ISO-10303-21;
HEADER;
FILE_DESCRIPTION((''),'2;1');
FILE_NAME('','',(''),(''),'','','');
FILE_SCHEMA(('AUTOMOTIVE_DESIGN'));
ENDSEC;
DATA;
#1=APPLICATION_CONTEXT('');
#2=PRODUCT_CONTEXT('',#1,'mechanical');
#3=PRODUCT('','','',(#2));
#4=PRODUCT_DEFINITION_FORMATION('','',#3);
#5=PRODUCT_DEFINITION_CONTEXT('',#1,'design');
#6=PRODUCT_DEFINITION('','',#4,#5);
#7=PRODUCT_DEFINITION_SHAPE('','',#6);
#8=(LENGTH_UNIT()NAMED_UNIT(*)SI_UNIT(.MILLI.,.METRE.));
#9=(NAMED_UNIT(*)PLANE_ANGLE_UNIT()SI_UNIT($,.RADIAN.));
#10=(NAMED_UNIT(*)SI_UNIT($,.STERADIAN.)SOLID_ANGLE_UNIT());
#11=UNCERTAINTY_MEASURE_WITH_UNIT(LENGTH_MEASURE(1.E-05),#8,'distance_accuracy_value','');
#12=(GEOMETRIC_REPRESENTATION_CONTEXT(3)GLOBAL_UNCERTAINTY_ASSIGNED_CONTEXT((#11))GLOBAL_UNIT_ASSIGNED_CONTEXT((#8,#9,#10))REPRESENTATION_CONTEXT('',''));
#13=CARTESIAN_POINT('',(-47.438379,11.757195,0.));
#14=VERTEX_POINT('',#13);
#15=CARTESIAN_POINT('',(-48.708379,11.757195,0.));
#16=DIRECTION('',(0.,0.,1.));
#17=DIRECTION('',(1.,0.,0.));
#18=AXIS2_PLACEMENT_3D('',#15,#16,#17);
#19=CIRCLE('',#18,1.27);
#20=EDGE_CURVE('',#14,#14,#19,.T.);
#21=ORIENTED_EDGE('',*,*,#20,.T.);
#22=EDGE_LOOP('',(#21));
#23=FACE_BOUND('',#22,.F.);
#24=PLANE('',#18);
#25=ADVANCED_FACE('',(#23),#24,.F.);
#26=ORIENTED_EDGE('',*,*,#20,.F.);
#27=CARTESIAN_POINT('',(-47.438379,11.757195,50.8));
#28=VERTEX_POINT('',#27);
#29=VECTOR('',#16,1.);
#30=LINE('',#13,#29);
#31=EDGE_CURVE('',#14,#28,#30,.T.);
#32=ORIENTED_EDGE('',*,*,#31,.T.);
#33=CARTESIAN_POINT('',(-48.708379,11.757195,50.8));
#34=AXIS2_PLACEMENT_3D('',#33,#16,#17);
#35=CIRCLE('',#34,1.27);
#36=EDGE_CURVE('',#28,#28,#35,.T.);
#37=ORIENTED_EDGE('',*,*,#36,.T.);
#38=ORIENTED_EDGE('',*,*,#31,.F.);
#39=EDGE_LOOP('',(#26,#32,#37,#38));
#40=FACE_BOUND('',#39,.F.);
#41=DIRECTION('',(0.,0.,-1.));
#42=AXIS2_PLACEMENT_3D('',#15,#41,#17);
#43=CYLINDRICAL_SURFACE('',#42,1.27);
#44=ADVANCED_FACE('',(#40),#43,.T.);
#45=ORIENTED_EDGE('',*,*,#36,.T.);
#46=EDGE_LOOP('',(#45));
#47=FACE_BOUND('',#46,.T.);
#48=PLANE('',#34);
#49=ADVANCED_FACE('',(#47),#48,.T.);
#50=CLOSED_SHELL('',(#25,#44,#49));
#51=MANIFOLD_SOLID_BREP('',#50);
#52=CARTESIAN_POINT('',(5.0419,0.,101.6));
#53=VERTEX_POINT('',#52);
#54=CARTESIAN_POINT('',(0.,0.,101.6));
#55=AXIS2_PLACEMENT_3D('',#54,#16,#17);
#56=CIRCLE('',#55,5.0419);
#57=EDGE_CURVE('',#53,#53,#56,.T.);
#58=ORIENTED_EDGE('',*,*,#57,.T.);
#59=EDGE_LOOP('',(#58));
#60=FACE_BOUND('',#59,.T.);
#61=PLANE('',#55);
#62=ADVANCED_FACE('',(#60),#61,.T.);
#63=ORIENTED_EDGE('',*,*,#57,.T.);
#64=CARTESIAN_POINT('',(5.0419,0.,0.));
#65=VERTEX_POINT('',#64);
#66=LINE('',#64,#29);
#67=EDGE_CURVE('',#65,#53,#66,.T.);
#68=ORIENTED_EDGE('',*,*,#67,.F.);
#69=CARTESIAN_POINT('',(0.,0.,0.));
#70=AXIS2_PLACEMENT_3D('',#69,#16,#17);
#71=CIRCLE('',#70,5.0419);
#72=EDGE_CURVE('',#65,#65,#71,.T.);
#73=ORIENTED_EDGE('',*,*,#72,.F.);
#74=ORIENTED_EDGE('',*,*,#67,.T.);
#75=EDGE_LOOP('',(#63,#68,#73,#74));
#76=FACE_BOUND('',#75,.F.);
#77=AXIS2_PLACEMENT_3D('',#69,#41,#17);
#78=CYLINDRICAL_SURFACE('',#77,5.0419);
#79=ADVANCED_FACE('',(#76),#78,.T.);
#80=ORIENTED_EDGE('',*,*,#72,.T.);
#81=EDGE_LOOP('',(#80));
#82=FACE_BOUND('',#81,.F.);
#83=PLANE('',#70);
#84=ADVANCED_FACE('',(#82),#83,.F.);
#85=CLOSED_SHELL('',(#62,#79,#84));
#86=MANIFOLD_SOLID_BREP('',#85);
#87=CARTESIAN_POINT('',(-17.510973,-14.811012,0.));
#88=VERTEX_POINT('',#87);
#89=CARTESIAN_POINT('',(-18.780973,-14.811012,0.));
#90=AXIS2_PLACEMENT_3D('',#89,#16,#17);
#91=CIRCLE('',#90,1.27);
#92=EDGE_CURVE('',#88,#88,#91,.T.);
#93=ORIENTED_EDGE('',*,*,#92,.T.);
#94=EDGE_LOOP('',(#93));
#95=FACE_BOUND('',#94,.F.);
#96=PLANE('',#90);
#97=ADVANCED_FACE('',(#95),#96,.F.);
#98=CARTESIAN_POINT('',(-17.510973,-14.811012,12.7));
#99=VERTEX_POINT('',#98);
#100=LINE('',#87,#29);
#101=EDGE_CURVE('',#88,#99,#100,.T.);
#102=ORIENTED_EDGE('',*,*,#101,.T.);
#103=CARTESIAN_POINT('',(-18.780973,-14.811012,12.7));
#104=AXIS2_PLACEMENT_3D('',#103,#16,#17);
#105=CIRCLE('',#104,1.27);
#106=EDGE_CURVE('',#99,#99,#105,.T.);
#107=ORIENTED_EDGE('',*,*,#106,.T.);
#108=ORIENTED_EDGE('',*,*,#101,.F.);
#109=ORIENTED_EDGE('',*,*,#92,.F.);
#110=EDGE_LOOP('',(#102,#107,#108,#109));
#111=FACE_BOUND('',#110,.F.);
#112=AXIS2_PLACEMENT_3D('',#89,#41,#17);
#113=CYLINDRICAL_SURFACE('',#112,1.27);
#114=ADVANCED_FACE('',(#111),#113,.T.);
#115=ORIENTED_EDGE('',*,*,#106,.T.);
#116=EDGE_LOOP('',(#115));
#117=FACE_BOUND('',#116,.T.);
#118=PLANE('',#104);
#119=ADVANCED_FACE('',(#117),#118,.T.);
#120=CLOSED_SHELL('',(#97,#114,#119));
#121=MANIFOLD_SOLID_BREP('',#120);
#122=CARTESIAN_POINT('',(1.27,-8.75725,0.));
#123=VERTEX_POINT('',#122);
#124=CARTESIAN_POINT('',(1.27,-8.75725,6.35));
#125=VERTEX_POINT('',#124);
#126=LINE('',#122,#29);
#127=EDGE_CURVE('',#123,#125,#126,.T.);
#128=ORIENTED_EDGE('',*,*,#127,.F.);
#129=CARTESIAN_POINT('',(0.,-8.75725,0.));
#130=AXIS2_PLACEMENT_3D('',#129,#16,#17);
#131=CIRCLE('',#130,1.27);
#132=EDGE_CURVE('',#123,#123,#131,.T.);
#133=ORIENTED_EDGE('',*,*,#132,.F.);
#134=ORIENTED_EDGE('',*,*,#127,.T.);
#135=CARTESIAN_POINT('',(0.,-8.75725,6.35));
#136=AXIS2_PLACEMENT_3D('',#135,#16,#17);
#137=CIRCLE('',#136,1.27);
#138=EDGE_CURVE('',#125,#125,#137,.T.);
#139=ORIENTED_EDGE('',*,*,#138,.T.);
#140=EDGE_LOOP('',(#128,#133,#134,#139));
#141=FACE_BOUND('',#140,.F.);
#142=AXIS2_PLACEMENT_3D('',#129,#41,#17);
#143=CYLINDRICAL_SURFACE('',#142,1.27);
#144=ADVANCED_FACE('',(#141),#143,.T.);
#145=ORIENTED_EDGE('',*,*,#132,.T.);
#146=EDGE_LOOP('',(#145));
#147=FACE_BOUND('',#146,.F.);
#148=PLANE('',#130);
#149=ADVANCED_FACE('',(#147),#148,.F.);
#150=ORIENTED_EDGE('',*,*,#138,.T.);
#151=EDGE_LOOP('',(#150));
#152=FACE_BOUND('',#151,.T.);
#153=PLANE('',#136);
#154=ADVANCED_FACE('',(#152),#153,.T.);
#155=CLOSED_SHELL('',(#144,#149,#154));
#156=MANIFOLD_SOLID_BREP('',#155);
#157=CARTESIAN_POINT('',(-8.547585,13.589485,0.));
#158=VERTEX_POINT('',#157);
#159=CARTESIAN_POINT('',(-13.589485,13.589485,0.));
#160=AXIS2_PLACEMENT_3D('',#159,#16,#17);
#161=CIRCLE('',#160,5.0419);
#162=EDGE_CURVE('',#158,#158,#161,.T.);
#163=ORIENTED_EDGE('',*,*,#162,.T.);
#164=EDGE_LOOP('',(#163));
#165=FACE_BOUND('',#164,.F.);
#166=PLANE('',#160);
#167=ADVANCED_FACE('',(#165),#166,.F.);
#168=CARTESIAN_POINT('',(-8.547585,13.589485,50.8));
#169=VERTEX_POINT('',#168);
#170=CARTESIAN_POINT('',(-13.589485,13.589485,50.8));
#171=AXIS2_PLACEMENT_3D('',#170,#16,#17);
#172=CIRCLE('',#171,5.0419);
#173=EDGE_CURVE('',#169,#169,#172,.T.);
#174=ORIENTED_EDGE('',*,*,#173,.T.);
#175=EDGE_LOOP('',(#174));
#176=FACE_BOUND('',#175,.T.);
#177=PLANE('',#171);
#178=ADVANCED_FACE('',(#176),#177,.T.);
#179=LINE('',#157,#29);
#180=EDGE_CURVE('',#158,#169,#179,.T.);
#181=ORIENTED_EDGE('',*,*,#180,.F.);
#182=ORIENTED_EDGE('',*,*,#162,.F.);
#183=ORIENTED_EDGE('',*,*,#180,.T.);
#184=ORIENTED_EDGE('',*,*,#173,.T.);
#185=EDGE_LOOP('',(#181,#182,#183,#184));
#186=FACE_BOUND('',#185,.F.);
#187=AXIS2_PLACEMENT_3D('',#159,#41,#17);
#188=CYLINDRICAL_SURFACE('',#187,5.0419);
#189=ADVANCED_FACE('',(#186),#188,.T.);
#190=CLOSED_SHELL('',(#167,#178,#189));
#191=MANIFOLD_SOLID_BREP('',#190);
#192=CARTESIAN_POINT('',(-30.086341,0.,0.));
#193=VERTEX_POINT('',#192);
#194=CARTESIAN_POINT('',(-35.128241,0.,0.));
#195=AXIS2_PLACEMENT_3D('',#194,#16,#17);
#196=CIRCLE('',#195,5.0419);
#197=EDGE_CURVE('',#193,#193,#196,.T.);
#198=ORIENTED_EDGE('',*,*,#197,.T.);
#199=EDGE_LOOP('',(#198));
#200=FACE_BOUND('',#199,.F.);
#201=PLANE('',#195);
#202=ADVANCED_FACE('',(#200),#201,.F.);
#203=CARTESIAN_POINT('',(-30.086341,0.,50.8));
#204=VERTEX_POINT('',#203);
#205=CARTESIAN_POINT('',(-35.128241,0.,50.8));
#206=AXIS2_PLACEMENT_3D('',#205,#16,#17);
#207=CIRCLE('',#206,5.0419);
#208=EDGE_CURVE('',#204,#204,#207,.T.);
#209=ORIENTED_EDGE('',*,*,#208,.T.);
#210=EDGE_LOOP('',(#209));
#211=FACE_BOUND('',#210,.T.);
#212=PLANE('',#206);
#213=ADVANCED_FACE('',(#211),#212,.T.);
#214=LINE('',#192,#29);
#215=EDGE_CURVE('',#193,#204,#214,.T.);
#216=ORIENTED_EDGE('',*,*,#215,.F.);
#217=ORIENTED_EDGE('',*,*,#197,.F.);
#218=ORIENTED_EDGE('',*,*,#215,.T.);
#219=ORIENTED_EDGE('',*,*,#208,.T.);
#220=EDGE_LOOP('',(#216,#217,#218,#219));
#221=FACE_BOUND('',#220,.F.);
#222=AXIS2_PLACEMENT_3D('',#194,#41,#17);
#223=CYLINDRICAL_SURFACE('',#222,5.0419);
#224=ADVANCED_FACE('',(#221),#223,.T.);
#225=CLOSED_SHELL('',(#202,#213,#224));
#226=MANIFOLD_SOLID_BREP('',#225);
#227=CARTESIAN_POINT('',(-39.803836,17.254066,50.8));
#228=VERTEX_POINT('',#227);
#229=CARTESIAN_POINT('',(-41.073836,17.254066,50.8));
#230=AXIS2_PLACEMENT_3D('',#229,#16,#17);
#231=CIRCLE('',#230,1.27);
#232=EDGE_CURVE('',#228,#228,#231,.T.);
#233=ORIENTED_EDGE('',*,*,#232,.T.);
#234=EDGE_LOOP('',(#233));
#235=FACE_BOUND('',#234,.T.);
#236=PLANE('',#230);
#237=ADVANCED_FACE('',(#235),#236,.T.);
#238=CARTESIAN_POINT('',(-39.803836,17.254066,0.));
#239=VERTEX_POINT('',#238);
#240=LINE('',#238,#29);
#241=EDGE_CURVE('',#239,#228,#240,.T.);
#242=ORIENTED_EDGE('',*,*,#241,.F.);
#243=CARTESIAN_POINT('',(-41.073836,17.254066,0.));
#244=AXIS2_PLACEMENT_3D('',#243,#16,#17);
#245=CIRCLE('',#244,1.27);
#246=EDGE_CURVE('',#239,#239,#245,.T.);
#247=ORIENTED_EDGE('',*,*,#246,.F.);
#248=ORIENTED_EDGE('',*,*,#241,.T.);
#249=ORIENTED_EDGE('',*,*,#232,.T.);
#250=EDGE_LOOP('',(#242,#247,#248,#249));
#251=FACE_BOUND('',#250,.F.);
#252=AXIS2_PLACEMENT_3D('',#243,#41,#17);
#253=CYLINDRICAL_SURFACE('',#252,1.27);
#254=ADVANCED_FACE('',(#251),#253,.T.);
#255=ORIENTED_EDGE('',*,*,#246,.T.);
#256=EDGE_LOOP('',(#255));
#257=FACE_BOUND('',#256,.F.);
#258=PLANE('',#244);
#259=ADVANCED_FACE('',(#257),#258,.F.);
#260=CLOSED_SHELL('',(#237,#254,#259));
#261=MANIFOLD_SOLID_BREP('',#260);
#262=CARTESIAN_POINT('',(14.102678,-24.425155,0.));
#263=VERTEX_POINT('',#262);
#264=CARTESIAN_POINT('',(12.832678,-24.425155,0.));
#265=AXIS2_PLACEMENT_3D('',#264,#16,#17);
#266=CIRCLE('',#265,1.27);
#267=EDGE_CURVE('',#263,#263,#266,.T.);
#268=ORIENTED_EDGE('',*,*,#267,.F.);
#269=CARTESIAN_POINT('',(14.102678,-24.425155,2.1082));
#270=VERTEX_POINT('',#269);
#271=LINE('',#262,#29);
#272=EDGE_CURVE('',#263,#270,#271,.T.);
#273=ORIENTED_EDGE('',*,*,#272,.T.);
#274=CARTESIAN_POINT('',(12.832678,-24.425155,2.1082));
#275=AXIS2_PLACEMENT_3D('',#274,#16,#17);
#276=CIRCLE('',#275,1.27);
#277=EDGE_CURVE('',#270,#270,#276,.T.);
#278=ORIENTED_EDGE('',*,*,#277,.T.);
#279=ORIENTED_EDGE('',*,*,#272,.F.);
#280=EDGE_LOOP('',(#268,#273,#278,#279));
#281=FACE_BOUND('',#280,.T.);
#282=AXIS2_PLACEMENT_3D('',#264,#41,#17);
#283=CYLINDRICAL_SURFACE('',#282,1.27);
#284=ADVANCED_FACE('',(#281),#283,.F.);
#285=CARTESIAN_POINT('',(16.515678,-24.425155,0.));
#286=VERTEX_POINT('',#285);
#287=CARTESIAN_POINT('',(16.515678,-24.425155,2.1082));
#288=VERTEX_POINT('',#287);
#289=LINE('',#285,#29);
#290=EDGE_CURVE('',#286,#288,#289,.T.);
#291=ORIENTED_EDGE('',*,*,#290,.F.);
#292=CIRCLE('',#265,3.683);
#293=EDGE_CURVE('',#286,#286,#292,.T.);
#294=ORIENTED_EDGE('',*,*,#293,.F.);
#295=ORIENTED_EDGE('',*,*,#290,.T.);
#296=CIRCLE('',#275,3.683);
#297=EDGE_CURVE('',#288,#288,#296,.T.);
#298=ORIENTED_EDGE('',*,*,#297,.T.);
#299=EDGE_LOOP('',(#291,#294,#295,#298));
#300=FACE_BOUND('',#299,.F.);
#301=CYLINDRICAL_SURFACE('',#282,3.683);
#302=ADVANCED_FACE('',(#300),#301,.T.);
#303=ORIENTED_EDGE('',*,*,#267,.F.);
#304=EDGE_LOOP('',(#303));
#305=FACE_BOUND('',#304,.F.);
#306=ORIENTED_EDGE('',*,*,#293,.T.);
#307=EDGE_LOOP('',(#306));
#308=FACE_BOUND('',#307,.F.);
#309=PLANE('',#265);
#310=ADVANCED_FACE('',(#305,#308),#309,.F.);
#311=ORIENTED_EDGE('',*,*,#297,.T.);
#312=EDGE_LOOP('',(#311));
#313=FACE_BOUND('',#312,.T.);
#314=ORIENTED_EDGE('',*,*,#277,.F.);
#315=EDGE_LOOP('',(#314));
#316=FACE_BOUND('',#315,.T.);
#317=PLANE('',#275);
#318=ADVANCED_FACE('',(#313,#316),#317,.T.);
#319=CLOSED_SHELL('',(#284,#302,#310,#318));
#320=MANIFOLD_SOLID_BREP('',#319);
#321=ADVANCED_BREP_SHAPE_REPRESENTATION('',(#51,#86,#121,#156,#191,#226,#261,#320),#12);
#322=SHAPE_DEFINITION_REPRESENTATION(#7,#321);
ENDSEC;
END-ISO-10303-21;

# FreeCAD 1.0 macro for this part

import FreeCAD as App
import Part
import Sketcher
from FreeCAD import Vector
Q = App.Units.Quantity

doc = App.newDocument("Part")
body = doc.addObject("PartDesign::Body", "Body")

sketch1 = doc.addObject("Sketcher::SketchObject", "Sketch")
body.addObject(sketch1)
sketch1.AttachmentSupport = (doc.XY_Plane, [""])
sketch1.MapMode = "FlatFace"
sketch1.addGeometry(Part.Circle(Vector(0, 0, 0), Vector(0, 0, 1), 5), False)
sketch1.addConstraint(Sketcher.Constraint("Coincident", 0, 3, -1, 1))
sketch1.addConstraint(Sketcher.Constraint("Diameter", 0, Q("0.397 in")))
pad1 = doc.addObject("PartDesign::Pad", "Pad")
body.addObject(pad1)
pad1.Profile = sketch1
pad1.Length = Q("4 in")
body2 = doc.addObject("PartDesign::Body", "Body001")
body2.AllowCompound = True

sketch2 = doc.addObject("Sketcher::SketchObject", "Sketch001")
body2.addObject(sketch2)
sketch2.AttachmentSupport = (doc.getObject("XY_Plane001"), [""])
sketch2.MapMode = "FlatFace"
sketch2.addGeometry(Part.Circle(Vector(-35.1, 0, 0), Vector(0, 0, 1), 5), False)
sketch2.addGeometry(Part.Circle(Vector(-13.6, 13.6, 0), Vector(0, 0, 1), 5), False)
sketch2.addGeometry(Part.Circle(Vector(-41.1, 17.3, 0), Vector(0, 0, 1), 1.3), False)
sketch2.addGeometry(Part.Circle(Vector(-48.7, 11.8, 0), Vector(0, 0, 1), 1.3), False)
sketch2.addConstraint(Sketcher.Constraint("Equal", 0, 1))
sketch2.addConstraint(Sketcher.Constraint("Equal", 2, 3))
sketch2.addConstraint(Sketcher.Constraint("PointOnObject", 0, 3, -1))
sketch2.addConstraint(Sketcher.Constraint("Diameter", 2, Q("0.1 in")))
sketch2.addConstraint(Sketcher.Constraint("Diameter", 0, Q("0.397 in")))
sketch2.addConstraint(Sketcher.Constraint("DistanceX", 0, 3, -1, 1, 35.128241))
sketch2.addConstraint(Sketcher.Constraint("DistanceX", 3, 3, -1, 1, 48.708379))
sketch2.addConstraint(Sketcher.Constraint("DistanceX", 2, 3, 1, 3, 27.484351))
sketch2.addConstraint(Sketcher.Constraint("DistanceY", 1, 3, 2, 3, 3.664581))
sketch2.addConstraint(Sketcher.Constraint("DistanceY", 3, 3, 2, 3, 5.496871))
sketch2.addConstraint(Sketcher.Constraint("DistanceX", 1, 3, -1, 1, 13.589485))
sketch2.addConstraint(Sketcher.Constraint("DistanceY", -1, 1, 1, 3, 13.589485))
pad2 = doc.addObject("PartDesign::Pad", "Pad001")
body2.addObject(pad2)
pad2.Profile = sketch2
pad2.Length = Q("2 in")
body3 = doc.addObject("PartDesign::Body", "Body002")

sketch3 = doc.addObject("Sketcher::SketchObject", "Sketch002")
body3.addObject(sketch3)
sketch3.AttachmentSupport = (doc.getObject("XY_Plane002"), [""])
sketch3.MapMode = "FlatFace"
sketch3.addGeometry(Part.Circle(Vector(0, -8.8, 0), Vector(0, 0, 1), 1.3), False)
sketch3.addConstraint(Sketcher.Constraint("PointOnObject", 0, 3, -2))
sketch3.addConstraint(Sketcher.Constraint("Diameter", 0, Q("0.1 in")))
sketch3.addConstraint(Sketcher.Constraint("DistanceY", 0, 3, -1, 1, 8.75725))
pad3 = doc.addObject("PartDesign::Pad", "Pad002")
body3.addObject(pad3)
pad3.Profile = sketch3
pad3.Length = Q("0.25 in")
body4 = doc.addObject("PartDesign::Body", "Body003")

sketch4 = doc.addObject("Sketcher::SketchObject", "Sketch003")
body4.addObject(sketch4)
sketch4.AttachmentSupport = (doc.getObject("XY_Plane003"), [""])
sketch4.MapMode = "FlatFace"
sketch4.addGeometry(Part.Circle(Vector(12.8, -24.4, 0), Vector(0, 0, 1), 3.7), False)
sketch4.addGeometry(Part.Circle(Vector(12.8, -24.4, 0), Vector(0, 0, 1), 1.3), False)
sketch4.addConstraint(Sketcher.Constraint("Coincident", 1, 3, 0, 3))
sketch4.addConstraint(Sketcher.Constraint("Diameter", 1, Q("0.1 in")))
sketch4.addConstraint(Sketcher.Constraint("Diameter", 0, Q("0.29 in")))
sketch4.addConstraint(Sketcher.Constraint("DistanceX", -1, 1, 0, 3, 12.832678))
sketch4.addConstraint(Sketcher.Constraint("DistanceY", 0, 3, -1, 1, 24.425155))
pad4 = doc.addObject("PartDesign::Pad", "Pad003")
body4.addObject(pad4)
pad4.Profile = sketch4
pad4.Length = Q("0.083 in")
body5 = doc.addObject("PartDesign::Body", "Body004")

sketch5 = doc.addObject("Sketcher::SketchObject", "Sketch004")
body5.addObject(sketch5)
sketch5.AttachmentSupport = (doc.getObject("XY_Plane004"), [""])
sketch5.MapMode = "FlatFace"
sketch5.addGeometry(Part.Circle(Vector(-18.8, -14.8, 0), Vector(0, 0, 1), 1.3), False)
sketch5.addConstraint(Sketcher.Constraint("Diameter", 0, Q("0.1 in")))
sketch5.addConstraint(Sketcher.Constraint("DistanceX", 0, 3, -1, 1, 18.780973))
sketch5.addConstraint(Sketcher.Constraint("DistanceY", 0, 3, -1, 1, 14.811012))
pad5 = doc.addObject("PartDesign::Pad", "Pad004")
body5.addObject(pad5)
pad5.Profile = sketch5
pad5.Length = Q("0.5 in")

doc.recompute()
